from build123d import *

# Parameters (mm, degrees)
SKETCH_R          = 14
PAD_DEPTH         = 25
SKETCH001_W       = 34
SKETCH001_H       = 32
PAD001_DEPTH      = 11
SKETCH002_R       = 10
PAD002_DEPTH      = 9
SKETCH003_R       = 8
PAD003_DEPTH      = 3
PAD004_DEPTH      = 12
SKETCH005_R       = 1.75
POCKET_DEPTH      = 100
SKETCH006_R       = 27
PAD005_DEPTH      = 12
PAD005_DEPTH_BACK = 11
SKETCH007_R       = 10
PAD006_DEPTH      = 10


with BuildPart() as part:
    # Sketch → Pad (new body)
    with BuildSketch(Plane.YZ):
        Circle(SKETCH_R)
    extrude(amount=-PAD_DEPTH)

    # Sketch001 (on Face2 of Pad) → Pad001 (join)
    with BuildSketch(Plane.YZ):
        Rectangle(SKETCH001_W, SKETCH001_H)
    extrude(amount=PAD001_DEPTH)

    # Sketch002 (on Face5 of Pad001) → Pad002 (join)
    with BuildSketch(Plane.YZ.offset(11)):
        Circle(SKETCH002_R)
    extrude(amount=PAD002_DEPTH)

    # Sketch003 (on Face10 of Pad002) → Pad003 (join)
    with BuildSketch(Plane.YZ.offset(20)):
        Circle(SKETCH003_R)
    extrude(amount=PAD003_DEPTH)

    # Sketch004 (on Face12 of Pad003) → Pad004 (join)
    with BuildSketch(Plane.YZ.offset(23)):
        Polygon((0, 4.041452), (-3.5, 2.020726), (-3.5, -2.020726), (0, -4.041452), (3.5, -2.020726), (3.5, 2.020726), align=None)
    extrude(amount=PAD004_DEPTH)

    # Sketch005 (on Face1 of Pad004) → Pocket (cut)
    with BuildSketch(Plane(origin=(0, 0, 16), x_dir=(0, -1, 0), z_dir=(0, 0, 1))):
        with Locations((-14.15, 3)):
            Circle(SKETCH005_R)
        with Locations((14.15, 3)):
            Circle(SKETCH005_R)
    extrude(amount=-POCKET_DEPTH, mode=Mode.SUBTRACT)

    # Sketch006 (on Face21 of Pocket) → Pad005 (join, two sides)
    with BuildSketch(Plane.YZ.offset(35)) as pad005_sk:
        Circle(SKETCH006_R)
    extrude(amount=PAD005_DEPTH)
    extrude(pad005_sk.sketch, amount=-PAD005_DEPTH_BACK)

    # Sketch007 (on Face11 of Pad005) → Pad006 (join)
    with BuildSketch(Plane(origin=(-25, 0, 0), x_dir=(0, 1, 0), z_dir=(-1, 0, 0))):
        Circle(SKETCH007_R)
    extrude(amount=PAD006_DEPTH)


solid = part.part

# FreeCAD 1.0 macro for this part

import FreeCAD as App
import Part
import Sketcher

V = App.Vector
Q = App.Units.Quantity


def add_polygon(sketch, points):
    """Adds a closed chain of lines whose ends are joined by coincident constraints."""
    first, n = sketch.GeometryCount, len(points)
    for a, b in zip(points, points[1:] + points[:1]):
        sketch.addGeometry(Part.LineSegment(App.Vector(*a, 0), App.Vector(*b, 0)), False)
    for i in range(n):
        sketch.addConstraint(Sketcher.Constraint("Coincident", first + i, 2, first + (i + 1) % n, 1))

doc = App.newDocument("Part")
body = doc.addObject("PartDesign::Body", "Body")

# Sketch on YZ plane
sketch1 = body.newObject("Sketcher::SketchObject", "Sketch")
sketch1.AttachmentSupport = (doc.getObject("YZ_Plane"), [""])
sketch1.MapMode = "FlatFace"
sketch1.addGeometry(Part.Circle(V(0, 0, 0), V(0, 0, 1), 14), False)
sketch1.addConstraint([
    Sketcher.Constraint("Coincident", 0, 3, -1, 1),
    Sketcher.Constraint("Diameter", 0, Q("28 mm")),
])
pad1 = body.newObject("PartDesign::Pad", "Pad")
pad1.Profile = sketch1
pad1.Length = 25
pad1.Reversed = True

# Sketch on YZ plane
sketch2 = body.newObject("Sketcher::SketchObject", "Sketch001")
sketch2.AttachmentSupport = (doc.getObject("YZ_Plane"), [""])
sketch2.MapMode = "FlatFace"
add_polygon(sketch2, [(-17, 16), (-17, -16), (17, -16), (17, 16)])  # lines 0-3
sketch2.addConstraint([
    Sketcher.Constraint("Vertical", 0),
    Sketcher.Constraint("Horizontal", 1),
    Sketcher.Constraint("Vertical", 2),
    Sketcher.Constraint("Horizontal", 3),
    Sketcher.Constraint("Symmetric", 0, 2, 2, 2, -1, 1),
    Sketcher.Constraint("DistanceX", 1, 1, 1, 2, Q("34 mm")),
    Sketcher.Constraint("DistanceY", 0, 2, 0, 1, Q("32 mm")),
])
pad2 = body.newObject("PartDesign::Pad", "Pad001")
pad2.Profile = sketch2
pad2.Length = 11

# Sketch on YZ plane
sketch3 = body.newObject("Sketcher::SketchObject", "Sketch002")
sketch3.AttachmentSupport = (doc.getObject("YZ_Plane"), [""])
sketch3.MapMode = "FlatFace"
sketch3.AttachmentOffset = App.Placement(V(0, 0, 11), App.Rotation())
sketch3.addGeometry(Part.Circle(V(0, 0, 0), V(0, 0, 1), 10), False)
sketch3.addConstraint([
    Sketcher.Constraint("Coincident", 0, 3, -1, 1),
    Sketcher.Constraint("Diameter", 0, Q("20 mm")),
])
pad3 = body.newObject("PartDesign::Pad", "Pad002")
pad3.Profile = sketch3
pad3.Length = 9

# Sketch on YZ plane
sketch4 = body.newObject("Sketcher::SketchObject", "Sketch003")
sketch4.AttachmentSupport = (doc.getObject("YZ_Plane"), [""])
sketch4.MapMode = "FlatFace"
sketch4.AttachmentOffset = App.Placement(V(0, 0, 20), App.Rotation())
sketch4.addGeometry(Part.Circle(V(0, 0, 0), V(0, 0, 1), 8), False)
sketch4.addConstraint([
    Sketcher.Constraint("Coincident", 0, 3, -1, 1),
    Sketcher.Constraint("Diameter", 0, Q("16 mm")),
])
pad4 = body.newObject("PartDesign::Pad", "Pad003")
pad4.Profile = sketch4
pad4.Length = 3

# Sketch on YZ plane
sketch5 = body.newObject("Sketcher::SketchObject", "Sketch004")
sketch5.AttachmentSupport = (doc.getObject("YZ_Plane"), [""])
sketch5.MapMode = "FlatFace"
sketch5.AttachmentOffset = App.Placement(V(0, 0, 23), App.Rotation())
add_polygon(sketch5, [(0, 4), (-3.5, 2), (-3.5, -2), (0, -4), (3.5, -2), (3.5, 2)])  # lines 0-5
sketch5.addConstraint([
    Sketcher.Constraint("Vertical", 1),
    Sketcher.Constraint("Vertical", 4),
    Sketcher.Constraint("Symmetric", 0, 2, 3, 2, -1, 1),
    Sketcher.Constraint("Symmetric", 2, 2, 5, 2, -1, 1),
    Sketcher.Constraint("PointOnObject", 2, 2, -2),
    Sketcher.Constraint("Parallel", 2, 5),
    Sketcher.Constraint("Horizontal", 1, 2, 3, 2),
    Sketcher.Constraint("Angle", 0, Q("-149.999999 deg")),
    Sketcher.Constraint("DistanceX", 1, 2, 3, 2, Q("7 mm")),
    Sketcher.Constraint("DistanceY", 1, 2, 1, 1, Q("4.041452 mm")),
])
pad5 = body.newObject("PartDesign::Pad", "Pad004")
pad5.Profile = sketch5
pad5.Length = 12

# Sketch on XY plane
sketch6 = body.newObject("Sketcher::SketchObject", "Sketch005")
sketch6.AttachmentSupport = (doc.getObject("XY_Plane"), [""])
sketch6.MapMode = "FlatFace"
sketch6.AttachmentOffset = App.Placement(V(0, 0, 16), App.Rotation())
sketch6.addGeometry([
    Part.Circle(V(3, 14.2, 0), V(0, 0, 1), 1.8),
    Part.Circle(V(3, -14.2, 0), V(0, 0, 1), 1.8),
], False)
sketch6.addConstraint([
    Sketcher.Constraint("Equal", 0, 1),
    Sketcher.Constraint("Symmetric", 0, 3, 1, 3, -1),
    Sketcher.Constraint("Diameter", 0, Q("3.5 mm")),
    Sketcher.Constraint("DistanceX", -1, 1, 0, 3, Q("3 mm")),
    Sketcher.Constraint("DistanceY", 1, 3, 0, 3, Q("28.3 mm")),
])
pocket1 = body.newObject("PartDesign::Pocket", "Pocket")
pocket1.Profile = sketch6
pocket1.Length = 100

# Sketch on YZ plane
sketch7 = body.newObject("Sketcher::SketchObject", "Sketch006")
sketch7.AttachmentSupport = (doc.getObject("YZ_Plane"), [""])
sketch7.MapMode = "FlatFace"
sketch7.AttachmentOffset = App.Placement(V(0, 0, 35), App.Rotation())
sketch7.addGeometry(Part.Circle(V(0, 0, 0), V(0, 0, 1), 27), False)
sketch7.addConstraint([
    Sketcher.Constraint("Coincident", 0, 3, -1, 1),
    Sketcher.Constraint("Diameter", 0, Q("54 mm")),
])
pad6 = body.newObject("PartDesign::Pad", "Pad005")
pad6.Profile = sketch7
pad6.Type = "TwoLengths"
pad6.Length = 12
pad6.Length2 = 11

# Sketch on YZ plane
sketch8 = body.newObject("Sketcher::SketchObject", "Sketch007")
sketch8.AttachmentSupport = (doc.getObject("YZ_Plane"), [""])
sketch8.MapMode = "FlatFace"
sketch8.AttachmentOffset = App.Placement(V(0, 0, -25), App.Rotation())
sketch8.addGeometry(Part.Circle(V(0, 0, 0), V(0, 0, 1), 10), False)
sketch8.addConstraint([
    Sketcher.Constraint("Coincident", 0, 3, -1, 1),
    Sketcher.Constraint("Diameter", 0, Q("20 mm")),
])
pad7 = body.newObject("PartDesign::Pad", "Pad006")
pad7.Profile = sketch8
pad7.Length = 10
pad7.Reversed = True

doc.recompute()
